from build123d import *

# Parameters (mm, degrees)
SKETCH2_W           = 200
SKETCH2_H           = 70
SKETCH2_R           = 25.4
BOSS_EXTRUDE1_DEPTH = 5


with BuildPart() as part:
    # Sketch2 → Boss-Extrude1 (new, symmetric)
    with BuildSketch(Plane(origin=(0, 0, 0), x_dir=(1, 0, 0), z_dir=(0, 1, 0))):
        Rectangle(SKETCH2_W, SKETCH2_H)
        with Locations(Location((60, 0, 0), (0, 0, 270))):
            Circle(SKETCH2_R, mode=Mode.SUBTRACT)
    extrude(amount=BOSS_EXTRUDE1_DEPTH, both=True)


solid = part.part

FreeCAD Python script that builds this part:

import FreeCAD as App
import Part
import Sketcher
from FreeCAD import Vector


def add_polygon(sketch, points):
    """Adds a closed chain of lines whose ends are joined by coincident constraints."""
    first, n = sketch.GeometryCount, len(points)
    for a, b in zip(points, points[1:] + points[:1]):
        sketch.addGeometry(Part.LineSegment(App.Vector(*a, 0), App.Vector(*b, 0)), False)
    for i in range(n):
        sketch.addConstraint(Sketcher.Constraint("Coincident", first + i, 2, first + (i + 1) % n, 1))

doc = App.newDocument("Part")
body = doc.addObject("PartDesign::Body", "Body")

# Sketch on XZ plane
sketch1 = doc.addObject("Sketcher::SketchObject", "Sketch")
body.addObject(sketch1)
sketch1.AttachmentSupport = (doc.XZ_Plane, [""])
sketch1.MapMode = "FlatFace"
add_polygon(sketch1, [(-100, -35), (-100, 35), (100, 35), (100, -35)])  # lines 0-3
sketch1.addGeometry(Part.Circle(Vector(60, 0, 0), Vector(0, 0, 1), 25.4), False)  # 4
sketch1.addConstraint(Sketcher.Constraint("Vertical", 0))
sketch1.addConstraint(Sketcher.Constraint("Horizontal", 1))
sketch1.addConstraint(Sketcher.Constraint("Vertical", 2))
sketch1.addConstraint(Sketcher.Constraint("Horizontal", 3))
sketch1.addConstraint(Sketcher.Constraint("Symmetric", 0, 2, 2, 2, -1, 1))
sketch1.addConstraint(Sketcher.Constraint("PointOnObject", 4, 3, -1))
sketch1.addConstraint(Sketcher.Constraint("Diameter", 4, 50.8))
sketch1.addConstraint(Sketcher.Constraint("DistanceX", 1, 1, 1, 2, 200.0))
sketch1.addConstraint(Sketcher.Constraint("DistanceY", 0, 1, 0, 2, 70.0))
sketch1.addConstraint(Sketcher.Constraint("DistanceX", -1, 1, 4, 3, 60.0))
pad1 = doc.addObject("PartDesign::Pad", "Pad")
body.addObject(pad1)
pad1.Profile = sketch1
pad1.Length = 10
pad1.Midplane = True

doc.recompute()
